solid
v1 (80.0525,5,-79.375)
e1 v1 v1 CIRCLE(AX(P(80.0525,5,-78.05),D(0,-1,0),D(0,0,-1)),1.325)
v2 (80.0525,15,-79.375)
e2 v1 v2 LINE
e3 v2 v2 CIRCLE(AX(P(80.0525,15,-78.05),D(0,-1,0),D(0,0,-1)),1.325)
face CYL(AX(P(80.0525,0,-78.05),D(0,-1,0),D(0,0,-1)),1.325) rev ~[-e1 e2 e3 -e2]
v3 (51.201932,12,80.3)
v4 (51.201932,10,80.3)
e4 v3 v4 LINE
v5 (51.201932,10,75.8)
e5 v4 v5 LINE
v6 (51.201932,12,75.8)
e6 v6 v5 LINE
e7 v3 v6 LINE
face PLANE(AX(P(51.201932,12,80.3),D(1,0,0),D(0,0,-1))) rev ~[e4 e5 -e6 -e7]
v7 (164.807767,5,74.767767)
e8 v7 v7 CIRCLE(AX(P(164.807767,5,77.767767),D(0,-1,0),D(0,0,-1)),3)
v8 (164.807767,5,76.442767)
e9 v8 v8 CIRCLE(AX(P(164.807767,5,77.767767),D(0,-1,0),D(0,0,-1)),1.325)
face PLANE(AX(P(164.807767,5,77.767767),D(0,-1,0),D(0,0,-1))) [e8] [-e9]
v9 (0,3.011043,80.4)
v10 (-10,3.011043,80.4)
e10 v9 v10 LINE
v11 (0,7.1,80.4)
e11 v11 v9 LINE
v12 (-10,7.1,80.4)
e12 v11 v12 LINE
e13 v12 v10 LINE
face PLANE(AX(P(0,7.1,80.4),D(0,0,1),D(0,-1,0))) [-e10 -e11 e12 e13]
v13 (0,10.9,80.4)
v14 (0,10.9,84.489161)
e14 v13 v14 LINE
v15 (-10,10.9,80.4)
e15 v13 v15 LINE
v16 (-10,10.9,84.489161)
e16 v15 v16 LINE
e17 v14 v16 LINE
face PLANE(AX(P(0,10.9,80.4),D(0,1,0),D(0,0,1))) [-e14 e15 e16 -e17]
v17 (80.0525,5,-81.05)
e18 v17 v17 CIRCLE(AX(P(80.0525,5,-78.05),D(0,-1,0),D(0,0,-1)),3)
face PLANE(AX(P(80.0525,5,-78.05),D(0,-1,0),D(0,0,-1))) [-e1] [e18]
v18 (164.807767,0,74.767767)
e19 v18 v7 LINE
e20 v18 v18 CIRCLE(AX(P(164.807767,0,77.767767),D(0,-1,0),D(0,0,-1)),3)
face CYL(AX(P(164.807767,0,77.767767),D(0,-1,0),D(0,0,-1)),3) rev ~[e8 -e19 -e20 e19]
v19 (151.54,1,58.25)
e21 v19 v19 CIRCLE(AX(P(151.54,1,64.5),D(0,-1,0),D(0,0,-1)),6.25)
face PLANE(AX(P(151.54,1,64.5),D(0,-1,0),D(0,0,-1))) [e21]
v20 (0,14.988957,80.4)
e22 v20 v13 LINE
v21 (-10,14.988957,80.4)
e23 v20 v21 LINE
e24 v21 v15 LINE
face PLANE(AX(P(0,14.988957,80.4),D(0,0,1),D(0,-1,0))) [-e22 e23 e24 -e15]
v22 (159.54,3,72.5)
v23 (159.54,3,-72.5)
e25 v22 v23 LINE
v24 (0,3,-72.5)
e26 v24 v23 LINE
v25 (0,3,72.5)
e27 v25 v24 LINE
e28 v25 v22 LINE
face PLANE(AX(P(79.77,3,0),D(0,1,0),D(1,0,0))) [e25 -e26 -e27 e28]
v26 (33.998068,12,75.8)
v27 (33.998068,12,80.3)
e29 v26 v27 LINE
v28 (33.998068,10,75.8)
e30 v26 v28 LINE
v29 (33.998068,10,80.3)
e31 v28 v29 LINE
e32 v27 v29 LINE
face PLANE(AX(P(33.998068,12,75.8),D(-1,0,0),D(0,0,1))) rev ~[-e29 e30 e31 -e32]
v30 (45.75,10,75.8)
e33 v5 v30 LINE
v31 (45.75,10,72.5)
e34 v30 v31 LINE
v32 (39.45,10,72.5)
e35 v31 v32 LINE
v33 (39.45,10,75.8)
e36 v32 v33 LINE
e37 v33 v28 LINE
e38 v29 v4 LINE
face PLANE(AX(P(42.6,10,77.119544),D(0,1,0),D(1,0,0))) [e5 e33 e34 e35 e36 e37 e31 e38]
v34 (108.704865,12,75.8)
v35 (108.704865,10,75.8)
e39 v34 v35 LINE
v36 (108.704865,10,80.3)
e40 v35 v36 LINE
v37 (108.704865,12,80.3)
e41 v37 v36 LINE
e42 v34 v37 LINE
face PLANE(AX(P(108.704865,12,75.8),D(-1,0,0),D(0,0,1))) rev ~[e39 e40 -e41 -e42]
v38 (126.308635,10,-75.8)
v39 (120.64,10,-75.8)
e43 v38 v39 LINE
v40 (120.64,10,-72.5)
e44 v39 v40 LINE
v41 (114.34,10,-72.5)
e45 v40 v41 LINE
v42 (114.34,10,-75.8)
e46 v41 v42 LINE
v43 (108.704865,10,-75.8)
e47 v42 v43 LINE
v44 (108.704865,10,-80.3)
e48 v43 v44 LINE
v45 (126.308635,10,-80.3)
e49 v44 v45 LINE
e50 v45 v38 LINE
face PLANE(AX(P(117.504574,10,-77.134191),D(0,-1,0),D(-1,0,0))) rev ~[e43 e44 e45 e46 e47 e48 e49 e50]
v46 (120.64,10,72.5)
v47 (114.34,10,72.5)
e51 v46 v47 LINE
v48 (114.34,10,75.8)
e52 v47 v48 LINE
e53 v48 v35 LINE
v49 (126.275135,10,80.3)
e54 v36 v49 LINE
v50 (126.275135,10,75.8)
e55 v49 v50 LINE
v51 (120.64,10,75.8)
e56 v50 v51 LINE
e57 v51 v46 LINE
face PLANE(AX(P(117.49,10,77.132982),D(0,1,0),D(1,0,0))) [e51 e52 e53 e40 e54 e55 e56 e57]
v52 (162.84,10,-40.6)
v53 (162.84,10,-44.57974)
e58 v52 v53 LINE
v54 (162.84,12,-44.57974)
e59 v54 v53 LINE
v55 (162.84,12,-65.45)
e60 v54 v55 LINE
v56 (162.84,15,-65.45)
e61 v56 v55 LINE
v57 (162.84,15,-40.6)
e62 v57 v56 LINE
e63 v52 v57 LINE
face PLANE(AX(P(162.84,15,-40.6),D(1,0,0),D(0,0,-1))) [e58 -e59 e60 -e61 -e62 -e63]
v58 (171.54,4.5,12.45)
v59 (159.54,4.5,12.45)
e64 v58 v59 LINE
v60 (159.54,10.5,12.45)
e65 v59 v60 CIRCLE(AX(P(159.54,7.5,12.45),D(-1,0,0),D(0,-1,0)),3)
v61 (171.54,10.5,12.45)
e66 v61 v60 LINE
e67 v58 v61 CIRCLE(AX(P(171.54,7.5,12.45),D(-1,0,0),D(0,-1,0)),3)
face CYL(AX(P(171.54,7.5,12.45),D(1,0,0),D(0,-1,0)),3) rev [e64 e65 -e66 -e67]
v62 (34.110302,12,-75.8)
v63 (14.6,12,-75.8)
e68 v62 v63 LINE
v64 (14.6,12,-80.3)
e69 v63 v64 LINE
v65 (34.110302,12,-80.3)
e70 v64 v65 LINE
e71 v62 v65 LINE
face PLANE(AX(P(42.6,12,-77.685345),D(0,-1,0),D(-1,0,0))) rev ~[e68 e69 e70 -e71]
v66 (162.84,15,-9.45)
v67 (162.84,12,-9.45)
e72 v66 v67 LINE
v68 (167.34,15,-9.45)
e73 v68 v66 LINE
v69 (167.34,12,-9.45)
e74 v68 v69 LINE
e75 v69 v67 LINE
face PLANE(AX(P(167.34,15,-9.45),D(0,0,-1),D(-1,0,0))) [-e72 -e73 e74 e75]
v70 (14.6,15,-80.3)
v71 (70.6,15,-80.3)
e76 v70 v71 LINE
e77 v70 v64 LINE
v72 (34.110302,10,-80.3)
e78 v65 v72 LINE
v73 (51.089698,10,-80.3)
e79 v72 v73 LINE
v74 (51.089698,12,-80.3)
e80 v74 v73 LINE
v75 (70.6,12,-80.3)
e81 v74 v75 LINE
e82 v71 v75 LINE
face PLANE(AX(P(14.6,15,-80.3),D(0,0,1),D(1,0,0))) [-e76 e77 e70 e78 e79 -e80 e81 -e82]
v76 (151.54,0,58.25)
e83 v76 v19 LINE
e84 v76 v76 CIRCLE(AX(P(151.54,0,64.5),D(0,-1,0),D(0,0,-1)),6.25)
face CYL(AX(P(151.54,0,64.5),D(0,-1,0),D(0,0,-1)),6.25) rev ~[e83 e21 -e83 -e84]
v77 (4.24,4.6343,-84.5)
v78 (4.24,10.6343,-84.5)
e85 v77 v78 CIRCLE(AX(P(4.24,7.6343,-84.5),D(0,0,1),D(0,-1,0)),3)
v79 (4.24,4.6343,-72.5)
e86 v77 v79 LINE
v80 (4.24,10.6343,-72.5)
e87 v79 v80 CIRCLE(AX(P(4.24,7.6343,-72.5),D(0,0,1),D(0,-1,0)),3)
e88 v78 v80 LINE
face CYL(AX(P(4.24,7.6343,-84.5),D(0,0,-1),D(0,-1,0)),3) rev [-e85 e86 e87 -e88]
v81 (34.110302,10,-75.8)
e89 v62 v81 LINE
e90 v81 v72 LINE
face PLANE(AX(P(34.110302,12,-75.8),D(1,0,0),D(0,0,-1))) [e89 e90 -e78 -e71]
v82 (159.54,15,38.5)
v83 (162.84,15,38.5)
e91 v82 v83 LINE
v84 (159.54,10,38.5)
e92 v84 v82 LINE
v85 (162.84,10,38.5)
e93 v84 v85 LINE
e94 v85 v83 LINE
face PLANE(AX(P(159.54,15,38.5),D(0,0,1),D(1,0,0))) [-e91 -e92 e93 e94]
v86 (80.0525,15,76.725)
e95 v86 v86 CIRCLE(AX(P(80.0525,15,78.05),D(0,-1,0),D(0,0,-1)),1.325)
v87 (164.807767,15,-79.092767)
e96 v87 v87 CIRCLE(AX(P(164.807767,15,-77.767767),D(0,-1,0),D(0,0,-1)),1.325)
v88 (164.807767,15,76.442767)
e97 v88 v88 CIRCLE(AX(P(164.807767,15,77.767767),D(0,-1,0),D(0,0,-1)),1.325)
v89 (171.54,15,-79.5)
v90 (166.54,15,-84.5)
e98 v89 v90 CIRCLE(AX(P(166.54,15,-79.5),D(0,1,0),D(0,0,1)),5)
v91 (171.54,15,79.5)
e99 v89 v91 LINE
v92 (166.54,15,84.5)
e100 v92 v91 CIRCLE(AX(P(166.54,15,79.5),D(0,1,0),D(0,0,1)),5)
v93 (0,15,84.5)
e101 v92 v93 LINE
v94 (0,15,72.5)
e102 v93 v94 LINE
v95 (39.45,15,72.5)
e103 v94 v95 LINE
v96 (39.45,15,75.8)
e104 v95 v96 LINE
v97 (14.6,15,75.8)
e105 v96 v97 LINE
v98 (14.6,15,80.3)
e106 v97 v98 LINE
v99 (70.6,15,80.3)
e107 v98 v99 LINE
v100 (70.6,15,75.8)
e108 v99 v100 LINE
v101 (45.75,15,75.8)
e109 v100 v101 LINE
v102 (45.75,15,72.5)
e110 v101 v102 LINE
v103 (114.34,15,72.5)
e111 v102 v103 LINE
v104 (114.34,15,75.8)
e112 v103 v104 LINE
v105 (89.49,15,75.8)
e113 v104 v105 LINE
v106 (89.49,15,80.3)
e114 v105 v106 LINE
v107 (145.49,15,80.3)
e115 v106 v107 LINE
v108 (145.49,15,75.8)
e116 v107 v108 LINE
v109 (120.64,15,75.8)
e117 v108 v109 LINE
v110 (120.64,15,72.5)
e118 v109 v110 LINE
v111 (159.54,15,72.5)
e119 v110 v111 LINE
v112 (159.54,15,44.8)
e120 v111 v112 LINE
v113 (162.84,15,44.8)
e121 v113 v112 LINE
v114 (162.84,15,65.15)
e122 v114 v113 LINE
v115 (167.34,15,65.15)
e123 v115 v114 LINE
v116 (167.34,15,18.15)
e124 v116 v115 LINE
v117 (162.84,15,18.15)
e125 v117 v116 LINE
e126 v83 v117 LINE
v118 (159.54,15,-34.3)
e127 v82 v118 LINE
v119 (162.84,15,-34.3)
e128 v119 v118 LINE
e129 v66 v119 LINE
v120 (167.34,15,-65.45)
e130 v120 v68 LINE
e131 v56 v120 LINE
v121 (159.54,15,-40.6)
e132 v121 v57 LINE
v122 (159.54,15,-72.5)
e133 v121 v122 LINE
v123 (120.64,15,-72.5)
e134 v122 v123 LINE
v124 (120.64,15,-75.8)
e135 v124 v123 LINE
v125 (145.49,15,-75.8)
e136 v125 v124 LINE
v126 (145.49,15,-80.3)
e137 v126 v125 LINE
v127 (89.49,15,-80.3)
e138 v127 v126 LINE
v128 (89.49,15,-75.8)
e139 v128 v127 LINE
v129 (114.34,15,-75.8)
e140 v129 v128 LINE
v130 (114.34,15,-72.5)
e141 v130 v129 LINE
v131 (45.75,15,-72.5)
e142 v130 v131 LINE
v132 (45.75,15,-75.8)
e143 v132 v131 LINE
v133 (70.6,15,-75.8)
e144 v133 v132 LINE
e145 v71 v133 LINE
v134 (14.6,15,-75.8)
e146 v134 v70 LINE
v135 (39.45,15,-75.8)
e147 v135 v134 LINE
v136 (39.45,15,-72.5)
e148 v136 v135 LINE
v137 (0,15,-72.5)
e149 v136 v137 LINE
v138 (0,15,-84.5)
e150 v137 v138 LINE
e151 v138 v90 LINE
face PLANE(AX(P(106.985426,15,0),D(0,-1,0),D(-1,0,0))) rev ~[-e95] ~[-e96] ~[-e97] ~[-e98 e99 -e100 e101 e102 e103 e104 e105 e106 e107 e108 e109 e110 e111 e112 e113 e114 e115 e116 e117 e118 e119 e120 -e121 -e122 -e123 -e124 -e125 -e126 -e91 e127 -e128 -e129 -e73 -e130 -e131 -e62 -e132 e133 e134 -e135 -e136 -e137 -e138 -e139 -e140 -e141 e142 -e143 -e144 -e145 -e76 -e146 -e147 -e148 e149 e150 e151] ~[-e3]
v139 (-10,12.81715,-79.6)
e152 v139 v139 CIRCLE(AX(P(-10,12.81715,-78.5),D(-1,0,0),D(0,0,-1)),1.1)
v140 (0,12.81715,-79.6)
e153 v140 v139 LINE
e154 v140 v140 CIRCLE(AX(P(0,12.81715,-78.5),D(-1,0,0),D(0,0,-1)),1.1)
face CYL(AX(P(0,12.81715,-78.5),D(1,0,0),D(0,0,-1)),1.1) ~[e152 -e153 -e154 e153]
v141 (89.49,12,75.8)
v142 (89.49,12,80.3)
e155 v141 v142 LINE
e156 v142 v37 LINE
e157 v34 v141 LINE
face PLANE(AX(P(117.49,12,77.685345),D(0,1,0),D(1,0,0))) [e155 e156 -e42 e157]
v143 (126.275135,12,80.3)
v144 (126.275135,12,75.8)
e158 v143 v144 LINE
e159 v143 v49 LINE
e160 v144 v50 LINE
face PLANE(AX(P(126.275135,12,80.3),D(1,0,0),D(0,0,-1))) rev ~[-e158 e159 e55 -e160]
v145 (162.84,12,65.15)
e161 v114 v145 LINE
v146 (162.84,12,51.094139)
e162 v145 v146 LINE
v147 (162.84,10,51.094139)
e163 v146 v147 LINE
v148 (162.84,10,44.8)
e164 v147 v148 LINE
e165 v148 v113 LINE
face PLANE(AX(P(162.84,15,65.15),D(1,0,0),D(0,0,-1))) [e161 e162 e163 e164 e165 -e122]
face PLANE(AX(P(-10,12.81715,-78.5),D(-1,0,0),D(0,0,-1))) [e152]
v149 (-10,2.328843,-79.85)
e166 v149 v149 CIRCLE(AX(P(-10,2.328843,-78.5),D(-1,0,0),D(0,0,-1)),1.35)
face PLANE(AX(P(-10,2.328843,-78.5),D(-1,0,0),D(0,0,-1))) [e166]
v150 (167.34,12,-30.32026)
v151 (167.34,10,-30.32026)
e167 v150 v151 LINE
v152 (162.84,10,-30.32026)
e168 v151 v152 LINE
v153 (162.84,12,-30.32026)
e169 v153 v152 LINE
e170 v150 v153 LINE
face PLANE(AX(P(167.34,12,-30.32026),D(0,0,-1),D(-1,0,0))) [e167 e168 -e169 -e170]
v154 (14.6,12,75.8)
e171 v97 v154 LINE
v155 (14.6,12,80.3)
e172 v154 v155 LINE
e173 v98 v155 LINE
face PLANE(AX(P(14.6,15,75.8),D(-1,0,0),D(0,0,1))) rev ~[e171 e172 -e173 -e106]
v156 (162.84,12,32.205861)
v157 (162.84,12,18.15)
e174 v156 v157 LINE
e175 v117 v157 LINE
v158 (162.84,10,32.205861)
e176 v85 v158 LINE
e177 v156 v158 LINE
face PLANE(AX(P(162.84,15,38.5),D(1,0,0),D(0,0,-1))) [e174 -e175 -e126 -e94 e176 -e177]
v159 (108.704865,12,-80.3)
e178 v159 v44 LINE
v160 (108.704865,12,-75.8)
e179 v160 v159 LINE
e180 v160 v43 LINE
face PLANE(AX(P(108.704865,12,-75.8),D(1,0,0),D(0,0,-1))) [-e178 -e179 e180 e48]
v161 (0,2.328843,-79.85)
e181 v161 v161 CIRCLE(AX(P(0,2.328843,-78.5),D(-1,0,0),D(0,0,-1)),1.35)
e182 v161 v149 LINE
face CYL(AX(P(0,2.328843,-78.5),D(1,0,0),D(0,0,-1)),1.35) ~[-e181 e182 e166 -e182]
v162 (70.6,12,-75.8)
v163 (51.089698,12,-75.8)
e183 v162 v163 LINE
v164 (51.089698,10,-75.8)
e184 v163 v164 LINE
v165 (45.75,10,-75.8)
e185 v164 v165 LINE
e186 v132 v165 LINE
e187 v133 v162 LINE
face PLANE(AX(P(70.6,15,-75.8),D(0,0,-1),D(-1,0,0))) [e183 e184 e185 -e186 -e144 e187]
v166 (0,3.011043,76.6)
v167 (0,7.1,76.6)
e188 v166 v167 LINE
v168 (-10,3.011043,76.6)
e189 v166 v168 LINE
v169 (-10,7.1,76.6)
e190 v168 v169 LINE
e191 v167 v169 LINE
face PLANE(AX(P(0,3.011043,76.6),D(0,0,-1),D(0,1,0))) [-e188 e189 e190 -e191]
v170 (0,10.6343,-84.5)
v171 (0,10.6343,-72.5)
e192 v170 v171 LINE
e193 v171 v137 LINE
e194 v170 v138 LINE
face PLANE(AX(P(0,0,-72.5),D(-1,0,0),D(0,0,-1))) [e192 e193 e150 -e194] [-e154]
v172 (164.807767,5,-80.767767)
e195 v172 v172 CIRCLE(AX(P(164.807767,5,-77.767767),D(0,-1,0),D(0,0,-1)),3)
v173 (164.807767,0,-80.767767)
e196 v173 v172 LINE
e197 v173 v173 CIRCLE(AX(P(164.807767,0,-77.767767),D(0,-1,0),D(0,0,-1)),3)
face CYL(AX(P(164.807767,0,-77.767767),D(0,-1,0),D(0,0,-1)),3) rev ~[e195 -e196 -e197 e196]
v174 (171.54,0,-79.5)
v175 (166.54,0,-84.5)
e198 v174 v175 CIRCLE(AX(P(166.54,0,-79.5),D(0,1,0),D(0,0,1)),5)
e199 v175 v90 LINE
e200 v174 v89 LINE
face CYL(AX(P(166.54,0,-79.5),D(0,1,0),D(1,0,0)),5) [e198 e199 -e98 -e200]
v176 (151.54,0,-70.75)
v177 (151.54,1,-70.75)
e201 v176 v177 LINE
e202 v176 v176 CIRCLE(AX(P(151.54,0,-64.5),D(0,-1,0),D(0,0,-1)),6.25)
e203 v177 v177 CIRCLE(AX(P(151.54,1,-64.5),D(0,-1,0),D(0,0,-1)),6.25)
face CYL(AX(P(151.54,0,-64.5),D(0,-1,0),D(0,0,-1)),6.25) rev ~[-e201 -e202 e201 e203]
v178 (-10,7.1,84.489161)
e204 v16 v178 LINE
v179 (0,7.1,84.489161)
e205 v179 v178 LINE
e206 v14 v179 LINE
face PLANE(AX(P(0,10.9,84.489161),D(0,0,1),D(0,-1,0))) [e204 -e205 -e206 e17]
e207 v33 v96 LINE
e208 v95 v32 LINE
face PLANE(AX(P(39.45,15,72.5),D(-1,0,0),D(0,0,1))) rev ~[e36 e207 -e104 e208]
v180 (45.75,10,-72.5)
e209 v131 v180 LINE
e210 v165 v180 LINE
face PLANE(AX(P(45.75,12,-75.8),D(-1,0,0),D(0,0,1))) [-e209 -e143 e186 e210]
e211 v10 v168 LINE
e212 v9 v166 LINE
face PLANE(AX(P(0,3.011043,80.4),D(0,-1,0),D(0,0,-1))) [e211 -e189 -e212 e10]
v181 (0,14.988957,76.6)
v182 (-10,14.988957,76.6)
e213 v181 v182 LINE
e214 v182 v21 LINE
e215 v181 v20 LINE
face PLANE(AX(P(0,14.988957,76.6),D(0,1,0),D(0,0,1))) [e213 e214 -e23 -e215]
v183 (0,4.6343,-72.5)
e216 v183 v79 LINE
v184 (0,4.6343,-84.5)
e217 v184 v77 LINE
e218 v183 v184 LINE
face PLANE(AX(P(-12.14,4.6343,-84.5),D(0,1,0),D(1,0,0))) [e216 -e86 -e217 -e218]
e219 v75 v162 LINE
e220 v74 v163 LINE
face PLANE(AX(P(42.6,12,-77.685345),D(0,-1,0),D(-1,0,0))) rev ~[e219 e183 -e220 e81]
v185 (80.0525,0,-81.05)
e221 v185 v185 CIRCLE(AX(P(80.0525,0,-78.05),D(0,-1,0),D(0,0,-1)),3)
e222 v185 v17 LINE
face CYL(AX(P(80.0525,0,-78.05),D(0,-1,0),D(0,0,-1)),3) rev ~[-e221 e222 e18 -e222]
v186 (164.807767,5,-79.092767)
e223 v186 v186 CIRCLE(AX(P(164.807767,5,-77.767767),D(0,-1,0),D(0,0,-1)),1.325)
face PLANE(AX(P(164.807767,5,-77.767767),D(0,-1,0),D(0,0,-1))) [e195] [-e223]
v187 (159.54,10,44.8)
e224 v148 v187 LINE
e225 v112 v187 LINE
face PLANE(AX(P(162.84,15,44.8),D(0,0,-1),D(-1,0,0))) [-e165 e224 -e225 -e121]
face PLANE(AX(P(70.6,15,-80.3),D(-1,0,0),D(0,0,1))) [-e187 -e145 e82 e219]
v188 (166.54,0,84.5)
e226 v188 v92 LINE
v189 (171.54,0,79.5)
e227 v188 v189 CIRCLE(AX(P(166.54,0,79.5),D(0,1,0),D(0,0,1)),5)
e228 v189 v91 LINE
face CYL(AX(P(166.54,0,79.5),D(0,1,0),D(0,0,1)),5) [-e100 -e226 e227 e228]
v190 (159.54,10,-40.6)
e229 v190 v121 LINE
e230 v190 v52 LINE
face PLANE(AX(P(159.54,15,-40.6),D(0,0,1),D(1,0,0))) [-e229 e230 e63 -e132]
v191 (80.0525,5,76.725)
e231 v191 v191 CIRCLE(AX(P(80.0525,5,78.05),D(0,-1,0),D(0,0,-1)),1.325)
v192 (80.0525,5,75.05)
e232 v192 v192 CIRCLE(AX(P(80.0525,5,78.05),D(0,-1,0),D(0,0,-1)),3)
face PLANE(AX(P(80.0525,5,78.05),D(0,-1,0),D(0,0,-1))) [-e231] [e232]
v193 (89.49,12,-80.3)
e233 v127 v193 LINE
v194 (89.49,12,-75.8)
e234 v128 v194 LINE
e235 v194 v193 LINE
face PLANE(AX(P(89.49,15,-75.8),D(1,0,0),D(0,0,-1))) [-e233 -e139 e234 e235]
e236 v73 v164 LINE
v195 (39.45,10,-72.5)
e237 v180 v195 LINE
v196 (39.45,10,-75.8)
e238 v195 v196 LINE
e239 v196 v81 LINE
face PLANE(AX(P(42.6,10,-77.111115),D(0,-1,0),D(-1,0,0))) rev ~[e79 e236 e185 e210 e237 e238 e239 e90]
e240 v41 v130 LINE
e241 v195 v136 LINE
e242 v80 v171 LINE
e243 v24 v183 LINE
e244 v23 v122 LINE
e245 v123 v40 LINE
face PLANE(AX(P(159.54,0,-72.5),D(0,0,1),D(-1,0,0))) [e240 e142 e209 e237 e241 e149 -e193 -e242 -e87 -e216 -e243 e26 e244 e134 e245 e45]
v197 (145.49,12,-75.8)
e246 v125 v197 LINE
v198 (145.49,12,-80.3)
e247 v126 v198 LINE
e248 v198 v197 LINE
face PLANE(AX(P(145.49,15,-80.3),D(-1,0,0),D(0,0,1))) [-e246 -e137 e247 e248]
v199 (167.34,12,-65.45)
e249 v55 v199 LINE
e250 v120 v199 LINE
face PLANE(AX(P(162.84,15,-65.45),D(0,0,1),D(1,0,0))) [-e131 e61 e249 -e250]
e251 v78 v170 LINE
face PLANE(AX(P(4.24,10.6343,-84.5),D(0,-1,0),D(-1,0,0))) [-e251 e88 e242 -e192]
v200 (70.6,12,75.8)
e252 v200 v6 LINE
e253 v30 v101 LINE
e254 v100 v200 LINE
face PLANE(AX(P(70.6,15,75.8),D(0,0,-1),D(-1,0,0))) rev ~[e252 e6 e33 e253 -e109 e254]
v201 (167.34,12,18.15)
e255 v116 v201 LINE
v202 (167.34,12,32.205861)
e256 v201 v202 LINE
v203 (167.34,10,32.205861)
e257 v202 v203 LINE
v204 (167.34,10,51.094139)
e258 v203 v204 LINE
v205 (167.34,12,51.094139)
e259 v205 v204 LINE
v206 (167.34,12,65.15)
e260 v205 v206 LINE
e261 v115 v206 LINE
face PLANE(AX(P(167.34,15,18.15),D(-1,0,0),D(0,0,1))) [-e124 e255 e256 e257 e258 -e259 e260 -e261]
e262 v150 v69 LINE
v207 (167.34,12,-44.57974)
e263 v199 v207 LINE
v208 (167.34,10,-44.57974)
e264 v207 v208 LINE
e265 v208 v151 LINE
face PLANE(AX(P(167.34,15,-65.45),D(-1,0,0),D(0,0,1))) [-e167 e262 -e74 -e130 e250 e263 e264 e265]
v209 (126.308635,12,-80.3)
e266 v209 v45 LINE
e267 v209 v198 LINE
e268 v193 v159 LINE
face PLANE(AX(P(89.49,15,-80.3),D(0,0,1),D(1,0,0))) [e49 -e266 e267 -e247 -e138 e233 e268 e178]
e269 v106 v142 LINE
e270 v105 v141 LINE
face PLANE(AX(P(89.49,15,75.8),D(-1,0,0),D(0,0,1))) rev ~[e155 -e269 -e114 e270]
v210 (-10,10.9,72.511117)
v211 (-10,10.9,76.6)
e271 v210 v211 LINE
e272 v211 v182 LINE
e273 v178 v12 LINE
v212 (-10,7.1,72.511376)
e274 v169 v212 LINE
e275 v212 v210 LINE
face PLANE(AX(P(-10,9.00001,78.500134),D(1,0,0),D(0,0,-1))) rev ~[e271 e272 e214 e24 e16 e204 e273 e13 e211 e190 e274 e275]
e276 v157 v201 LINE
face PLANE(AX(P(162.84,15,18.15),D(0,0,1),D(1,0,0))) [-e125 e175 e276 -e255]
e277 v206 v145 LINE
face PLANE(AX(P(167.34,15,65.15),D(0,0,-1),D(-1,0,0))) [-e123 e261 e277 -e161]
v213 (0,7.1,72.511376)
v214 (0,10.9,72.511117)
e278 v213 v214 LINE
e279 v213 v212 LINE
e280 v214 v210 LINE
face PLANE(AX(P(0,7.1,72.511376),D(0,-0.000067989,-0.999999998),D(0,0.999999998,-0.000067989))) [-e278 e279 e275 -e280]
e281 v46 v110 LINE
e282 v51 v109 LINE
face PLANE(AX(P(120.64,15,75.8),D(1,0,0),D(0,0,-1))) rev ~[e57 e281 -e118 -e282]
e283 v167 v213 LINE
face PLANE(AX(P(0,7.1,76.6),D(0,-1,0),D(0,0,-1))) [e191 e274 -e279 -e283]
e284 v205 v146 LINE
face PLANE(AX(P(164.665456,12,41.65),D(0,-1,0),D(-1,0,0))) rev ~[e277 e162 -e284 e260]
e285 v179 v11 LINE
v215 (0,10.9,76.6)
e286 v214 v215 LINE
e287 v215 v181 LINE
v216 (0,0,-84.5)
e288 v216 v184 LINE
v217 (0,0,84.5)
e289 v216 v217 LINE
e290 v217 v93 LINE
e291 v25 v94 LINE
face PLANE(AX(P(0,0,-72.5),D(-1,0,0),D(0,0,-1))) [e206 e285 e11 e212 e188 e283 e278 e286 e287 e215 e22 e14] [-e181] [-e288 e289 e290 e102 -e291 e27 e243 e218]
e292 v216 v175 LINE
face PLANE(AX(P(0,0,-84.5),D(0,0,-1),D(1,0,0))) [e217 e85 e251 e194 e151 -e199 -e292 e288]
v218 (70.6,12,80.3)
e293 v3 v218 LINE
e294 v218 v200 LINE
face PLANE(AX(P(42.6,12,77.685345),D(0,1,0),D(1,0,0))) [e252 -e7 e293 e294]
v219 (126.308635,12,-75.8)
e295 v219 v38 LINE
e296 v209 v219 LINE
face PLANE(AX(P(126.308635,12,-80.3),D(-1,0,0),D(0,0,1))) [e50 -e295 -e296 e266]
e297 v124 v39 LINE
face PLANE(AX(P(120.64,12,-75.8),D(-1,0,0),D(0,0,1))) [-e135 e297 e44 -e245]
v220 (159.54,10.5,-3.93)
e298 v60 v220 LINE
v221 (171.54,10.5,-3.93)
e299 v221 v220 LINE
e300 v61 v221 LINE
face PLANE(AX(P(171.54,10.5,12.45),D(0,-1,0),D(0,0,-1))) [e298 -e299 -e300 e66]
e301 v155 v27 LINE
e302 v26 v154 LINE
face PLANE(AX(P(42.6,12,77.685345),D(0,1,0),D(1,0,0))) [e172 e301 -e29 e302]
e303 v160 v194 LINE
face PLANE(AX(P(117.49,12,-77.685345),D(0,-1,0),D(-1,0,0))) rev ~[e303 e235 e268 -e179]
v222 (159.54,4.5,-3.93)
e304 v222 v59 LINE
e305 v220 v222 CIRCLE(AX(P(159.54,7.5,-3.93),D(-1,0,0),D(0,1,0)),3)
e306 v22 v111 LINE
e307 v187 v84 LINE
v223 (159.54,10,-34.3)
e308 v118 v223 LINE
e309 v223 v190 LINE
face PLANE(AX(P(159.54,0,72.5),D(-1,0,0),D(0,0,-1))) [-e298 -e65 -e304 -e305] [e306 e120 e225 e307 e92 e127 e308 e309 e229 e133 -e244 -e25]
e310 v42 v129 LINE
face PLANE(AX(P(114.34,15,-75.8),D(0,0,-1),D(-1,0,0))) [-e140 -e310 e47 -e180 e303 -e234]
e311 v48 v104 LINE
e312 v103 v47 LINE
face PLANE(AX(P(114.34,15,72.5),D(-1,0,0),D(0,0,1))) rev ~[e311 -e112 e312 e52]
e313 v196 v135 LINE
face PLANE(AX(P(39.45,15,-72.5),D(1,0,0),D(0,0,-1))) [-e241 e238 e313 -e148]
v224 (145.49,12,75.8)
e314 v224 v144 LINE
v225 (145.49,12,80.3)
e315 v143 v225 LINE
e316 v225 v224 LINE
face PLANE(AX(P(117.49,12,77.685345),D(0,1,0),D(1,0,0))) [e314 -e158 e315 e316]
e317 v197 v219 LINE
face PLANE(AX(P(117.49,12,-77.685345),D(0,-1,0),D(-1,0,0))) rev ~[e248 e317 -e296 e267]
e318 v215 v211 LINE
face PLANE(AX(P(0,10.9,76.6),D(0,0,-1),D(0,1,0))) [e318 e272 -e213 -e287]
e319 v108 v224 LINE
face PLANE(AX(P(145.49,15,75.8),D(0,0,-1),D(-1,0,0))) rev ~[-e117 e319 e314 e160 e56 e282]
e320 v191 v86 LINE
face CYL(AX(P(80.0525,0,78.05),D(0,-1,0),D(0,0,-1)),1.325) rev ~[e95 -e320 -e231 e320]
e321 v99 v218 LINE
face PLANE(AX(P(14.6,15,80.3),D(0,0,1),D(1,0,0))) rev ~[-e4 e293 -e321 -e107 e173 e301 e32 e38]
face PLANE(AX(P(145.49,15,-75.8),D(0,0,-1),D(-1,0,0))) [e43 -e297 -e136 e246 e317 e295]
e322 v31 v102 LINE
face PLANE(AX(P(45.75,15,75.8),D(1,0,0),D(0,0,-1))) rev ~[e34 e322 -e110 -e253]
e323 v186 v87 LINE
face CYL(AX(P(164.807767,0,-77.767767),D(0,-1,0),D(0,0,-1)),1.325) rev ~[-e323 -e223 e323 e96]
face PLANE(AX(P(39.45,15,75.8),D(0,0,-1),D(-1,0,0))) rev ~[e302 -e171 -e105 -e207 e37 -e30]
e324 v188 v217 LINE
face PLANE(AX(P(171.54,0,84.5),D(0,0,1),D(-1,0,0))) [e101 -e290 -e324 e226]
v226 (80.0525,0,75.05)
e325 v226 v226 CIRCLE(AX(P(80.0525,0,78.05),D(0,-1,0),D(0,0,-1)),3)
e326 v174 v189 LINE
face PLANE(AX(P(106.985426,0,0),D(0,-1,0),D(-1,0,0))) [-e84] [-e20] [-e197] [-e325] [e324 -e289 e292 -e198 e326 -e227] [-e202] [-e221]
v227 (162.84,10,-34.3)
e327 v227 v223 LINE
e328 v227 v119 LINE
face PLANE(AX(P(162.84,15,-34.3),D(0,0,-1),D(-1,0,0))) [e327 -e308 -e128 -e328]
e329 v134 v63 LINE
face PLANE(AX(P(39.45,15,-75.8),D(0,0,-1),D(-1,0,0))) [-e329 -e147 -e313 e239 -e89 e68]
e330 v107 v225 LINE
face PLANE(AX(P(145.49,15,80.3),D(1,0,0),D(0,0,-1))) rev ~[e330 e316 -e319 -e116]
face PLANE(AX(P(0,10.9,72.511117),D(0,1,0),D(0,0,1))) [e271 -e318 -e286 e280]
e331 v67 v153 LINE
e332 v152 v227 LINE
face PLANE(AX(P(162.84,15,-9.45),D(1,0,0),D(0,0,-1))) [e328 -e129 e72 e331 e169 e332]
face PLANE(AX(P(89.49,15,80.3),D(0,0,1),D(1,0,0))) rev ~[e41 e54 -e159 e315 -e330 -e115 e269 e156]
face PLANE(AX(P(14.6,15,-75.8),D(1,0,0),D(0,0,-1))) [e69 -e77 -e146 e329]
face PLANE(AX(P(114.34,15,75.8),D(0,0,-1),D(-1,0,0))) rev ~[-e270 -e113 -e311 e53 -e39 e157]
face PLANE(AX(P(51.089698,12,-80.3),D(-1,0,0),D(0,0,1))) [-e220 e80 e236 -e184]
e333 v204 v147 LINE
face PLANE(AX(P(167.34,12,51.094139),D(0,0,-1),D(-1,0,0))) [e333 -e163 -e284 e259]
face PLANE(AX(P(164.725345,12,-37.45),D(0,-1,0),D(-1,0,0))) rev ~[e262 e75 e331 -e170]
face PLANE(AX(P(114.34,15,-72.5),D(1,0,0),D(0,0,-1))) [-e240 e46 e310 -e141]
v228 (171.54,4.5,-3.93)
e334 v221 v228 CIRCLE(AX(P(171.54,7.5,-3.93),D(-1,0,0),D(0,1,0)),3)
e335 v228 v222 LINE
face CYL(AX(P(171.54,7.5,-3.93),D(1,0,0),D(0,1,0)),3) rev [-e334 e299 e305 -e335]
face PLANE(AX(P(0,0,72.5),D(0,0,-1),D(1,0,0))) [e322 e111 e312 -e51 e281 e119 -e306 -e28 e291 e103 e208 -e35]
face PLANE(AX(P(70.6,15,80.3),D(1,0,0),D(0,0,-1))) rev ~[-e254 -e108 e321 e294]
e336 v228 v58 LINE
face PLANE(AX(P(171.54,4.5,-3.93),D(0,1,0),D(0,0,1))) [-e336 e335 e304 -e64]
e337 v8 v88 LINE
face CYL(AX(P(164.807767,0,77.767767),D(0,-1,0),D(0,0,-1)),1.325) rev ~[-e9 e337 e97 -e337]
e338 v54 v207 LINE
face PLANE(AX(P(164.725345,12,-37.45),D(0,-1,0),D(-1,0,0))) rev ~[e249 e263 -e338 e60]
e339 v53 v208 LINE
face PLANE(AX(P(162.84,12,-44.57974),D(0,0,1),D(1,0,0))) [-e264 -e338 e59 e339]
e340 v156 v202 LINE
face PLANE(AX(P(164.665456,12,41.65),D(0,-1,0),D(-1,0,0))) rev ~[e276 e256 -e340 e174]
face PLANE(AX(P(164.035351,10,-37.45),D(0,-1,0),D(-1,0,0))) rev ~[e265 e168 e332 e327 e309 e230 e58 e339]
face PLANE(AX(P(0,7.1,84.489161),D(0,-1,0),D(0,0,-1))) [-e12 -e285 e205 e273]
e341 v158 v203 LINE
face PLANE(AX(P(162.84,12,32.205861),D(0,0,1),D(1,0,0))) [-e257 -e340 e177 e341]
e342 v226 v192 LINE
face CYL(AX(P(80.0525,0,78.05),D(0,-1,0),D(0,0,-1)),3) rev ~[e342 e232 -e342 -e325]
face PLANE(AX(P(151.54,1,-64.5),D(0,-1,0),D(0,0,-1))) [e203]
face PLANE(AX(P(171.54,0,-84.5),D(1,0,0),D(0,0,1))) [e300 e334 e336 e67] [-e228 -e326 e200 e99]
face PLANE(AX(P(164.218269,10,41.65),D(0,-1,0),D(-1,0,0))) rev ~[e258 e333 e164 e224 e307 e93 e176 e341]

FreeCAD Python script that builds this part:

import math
import FreeCAD as App
import Part
import Sketcher

V = App.Vector


def edges_at(feature, points):
    """Names of the edges that pass closest to the given points."""
    edges = feature.Shape.Edges
    near = lambda p: min(range(len(edges)), key=lambda i: edges[i].distToShape(Part.Vertex(*p))[0])
    return sorted({f"Edge{near(p) + 1}" for p in points})


def add_polygon(sketch, points):
    """Adds a closed chain of lines whose ends are joined by coincident constraints."""
    first, n = sketch.GeometryCount, len(points)
    for a, b in zip(points, points[1:] + points[:1]):
        sketch.addGeometry(Part.LineSegment(App.Vector(*a, 0), App.Vector(*b, 0)), False)
    for i in range(n):
        sketch.addConstraint(Sketcher.Constraint("Coincident", first + i, 2, first + (i + 1) % n, 1))

doc = App.newDocument("Part")
body = doc.addObject("PartDesign::Body", "Body")

# Sketch on XZ plane
sketch1 = body.newObject("Sketcher::SketchObject", "Sketch")
sketch1.AttachmentSupport = (doc.getObject("XZ_Plane"), [""])
sketch1.MapMode = "FlatFace"
add_polygon(sketch1, [(0, -72.5), (0, 72.5), (159.54, 72.5), (159.54, -72.5)])  # lines 0-3
sketch1.addConstraint([
    Sketcher.Constraint("Vertical", 0),
    Sketcher.Constraint("Horizontal", 1),
    Sketcher.Constraint("Vertical", 2),
    Sketcher.Constraint("Horizontal", 3),
    Sketcher.Constraint("Symmetric", 0, 2, 3, 2, -1, 1),
    Sketcher.Constraint("DistanceY", 0, 1, 0, 2, 145.0),
    Sketcher.Constraint("DistanceX", 1, 1, 1, 2, 159.54),
])
pad1 = body.newObject("PartDesign::Pad", "Pad")
pad1.Profile = sketch1
pad1.Length = 3
pad1.Reversed = True

# Sketch on XZ plane
sketch2 = body.newObject("Sketcher::SketchObject", "Sketch001")
sketch2.AttachmentSupport = (doc.getObject("XZ_Plane"), [""])
sketch2.MapMode = "FlatFace"
add_polygon(sketch2, [(0, -84.5), (0, -72.5), (159.54, -72.5), (159.54, 72.5), (0, 72.5), (0, 84.5), (171.54, 84.5), (171.54, -84.5)])  # lines 0-7
sketch2.addConstraint([
    Sketcher.Constraint("Vertical", 0),
    Sketcher.Constraint("Horizontal", 1),
    Sketcher.Constraint("Vertical", 2),
    Sketcher.Constraint("Horizontal", 3),
    Sketcher.Constraint("Vertical", 4),
    Sketcher.Constraint("Horizontal", 5),
    Sketcher.Constraint("Vertical", 6),
    Sketcher.Constraint("Horizontal", 7),
    Sketcher.Constraint("Symmetric", 0, 2, 3, 2, -1, 1),
    Sketcher.Constraint("Symmetric", 4, 2, 7, 2, -1),
    Sketcher.Constraint("DistanceY", 0, 1, 0, 2, 12.0),
    Sketcher.Constraint("DistanceY", 2, 1, 2, 2, 145.0),
    Sketcher.Constraint("DistanceX", 2, 2, 5, 2, 12.0),
    Sketcher.Constraint("DistanceX", 1, 1, 1, 2, 159.54),
])
pad2 = body.newObject("PartDesign::Pad", "Pad001")
pad2.Profile = sketch2
pad2.Length = 15
pad2.Reversed = True

# Sketch on XZ plane
sketch3 = body.newObject("Sketcher::SketchObject", "Sketch002")
sketch3.AttachmentSupport = (doc.getObject("XZ_Plane"), [""])
sketch3.MapMode = "FlatFace"
sketch3.AttachmentOffset = App.Placement(V(0, 0, -15), App.Rotation())
add_polygon(sketch3, [(45.75, -72.5), (45.75, -75.8), (70.6, -75.8), (70.6, -80.3), (14.6, -80.3), (14.6, -75.8), (39.45, -75.8), (39.45, -72.5)])  # lines 0-7
add_polygon(sketch3, [(120.64, -72.5), (120.64, -75.8), (145.49, -75.8), (145.49, -80.3), (89.49, -80.3), (89.49, -75.8), (114.34, -75.8), (114.34, -72.5)])  # lines 8-15
add_polygon(sketch3, [(145.49, 75.8), (120.64, 75.8), (120.64, 72.5), (114.34, 72.5), (114.34, 75.8), (89.49, 75.8), (89.49, 80.3), (145.49, 80.3)])  # lines 16-23
add_polygon(sketch3, [(70.6, 75.8), (45.75, 75.8), (45.75, 72.5), (39.45, 72.5), (39.45, 75.8), (14.6, 75.8), (14.6, 80.3), (70.6, 80.3)])  # lines 24-31
add_polygon(sketch3, [(162.84, 38.5), (159.54, 38.5), (159.54, 44.8), (162.84, 44.8), (162.84, 65.15), (167.34, 65.15), (167.34, 18.15), (162.84, 18.15)])  # lines 32-39
add_polygon(sketch3, [(162.84, -40.6), (159.54, -40.6), (159.54, -34.3), (162.84, -34.3), (162.84, -9.45), (167.34, -9.45), (167.34, -65.45), (162.84, -65.45)])  # lines 40-47
sketch3.addConstraint([
    Sketcher.Constraint("Vertical", 0),
    Sketcher.Constraint("Horizontal", 1),
    Sketcher.Constraint("Vertical", 2),
    Sketcher.Constraint("Horizontal", 3),
    Sketcher.Constraint("Vertical", 4),
    Sketcher.Constraint("Horizontal", 5),
    Sketcher.Constraint("Vertical", 6),
    Sketcher.Constraint("Horizontal", 7),
    Sketcher.Constraint("Vertical", 8),
    Sketcher.Constraint("Horizontal", 9),
    Sketcher.Constraint("Vertical", 10),
    Sketcher.Constraint("Horizontal", 11),
    Sketcher.Constraint("Vertical", 12),
    Sketcher.Constraint("Horizontal", 13),
    Sketcher.Constraint("Vertical", 14),
    Sketcher.Constraint("Horizontal", 15),
    Sketcher.Constraint("Horizontal", 16),
    Sketcher.Constraint("Vertical", 17),
    Sketcher.Constraint("Horizontal", 18),
    Sketcher.Constraint("Vertical", 19),
    Sketcher.Constraint("Horizontal", 20),
    Sketcher.Constraint("Vertical", 21),
    Sketcher.Constraint("Horizontal", 22),
    Sketcher.Constraint("Vertical", 23),
    Sketcher.Constraint("Horizontal", 24),
    Sketcher.Constraint("Vertical", 25),
    Sketcher.Constraint("Horizontal", 26),
    Sketcher.Constraint("Vertical", 27),
    Sketcher.Constraint("Horizontal", 28),
    Sketcher.Constraint("Vertical", 29),
    Sketcher.Constraint("Horizontal", 30),
    Sketcher.Constraint("Vertical", 31),
    Sketcher.Constraint("Horizontal", 32),
    Sketcher.Constraint("Vertical", 33),
    Sketcher.Constraint("Horizontal", 34),
    Sketcher.Constraint("Vertical", 35),
    Sketcher.Constraint("Horizontal", 36),
    Sketcher.Constraint("Vertical", 37),
    Sketcher.Constraint("Horizontal", 38),
    Sketcher.Constraint("Vertical", 39),
    Sketcher.Constraint("Horizontal", 40),
    Sketcher.Constraint("Vertical", 41),
    Sketcher.Constraint("Horizontal", 42),
    Sketcher.Constraint("Vertical", 43),
    Sketcher.Constraint("Horizontal", 44),
    Sketcher.Constraint("Vertical", 45),
    Sketcher.Constraint("Horizontal", 46),
    Sketcher.Constraint("Vertical", 47),
    Sketcher.Constraint("Symmetric", 8, 2, 16, 2, -1),
    Sketcher.Constraint("Symmetric", 14, 2, 18, 2, -1),
    Sketcher.Constraint("Symmetric", 12, 2, 20, 2, -1),
    Sketcher.Constraint("Symmetric", 10, 2, 22, 2, -1),
    Sketcher.Constraint("Symmetric", 0, 2, 24, 2, -1),
    Sketcher.Constraint("Symmetric", 6, 2, 26, 2, -1),
    Sketcher.Constraint("Symmetric", 4, 2, 28, 2, -1),
    Sketcher.Constraint("Symmetric", 2, 2, 30, 2, -1),
    Sketcher.Constraint("Horizontal", 1, 2, 4, 2),
    Sketcher.Constraint("Horizontal", 5, 2, 8, 2),
    Sketcher.Constraint("Horizontal", 3, 2, 10, 2),
    Sketcher.Constraint("Horizontal", 9, 2, 12, 2),
    Sketcher.Constraint("Horizontal", 7, 2, 14, 2),
    Sketcher.Constraint("Vertical", 35, 2, 38, 2),
    Sketcher.Constraint("Vertical", 33, 2, 40, 2),
    Sketcher.Constraint("Vertical", 39, 2, 42, 2),
    Sketcher.Constraint("Vertical", 37, 2, 44, 2),
    Sketcher.Constraint("Vertical", 43, 2, 46, 2),
    Sketcher.Constraint("Equal", 1, 5),
    Sketcher.Constraint("Equal", 5, 9),
    Sketcher.Constraint("Equal", 3, 11),
    Sketcher.Constraint("Equal", 9, 13),
    Sketcher.Constraint("Equal", 42, 0),
    Sketcher.Constraint("Equal", 46, 2),
    Sketcher.Constraint("Equal", 26, 33),
    Sketcher.Constraint("Equal", 35, 39),
    Sketcher.Constraint("Equal", 33, 41),
    Sketcher.Constraint("Equal", 28, 43),
    Sketcher.Constraint("Equal", 30, 45),
    Sketcher.Constraint("DistanceX", 3, 2, 3, 1, 56.0),
    Sketcher.Constraint("DistanceY", 37, 2, 37, 1, 47.0),
    Sketcher.Constraint("DistanceX", 7, 1, 7, 2, 6.3),
    Sketcher.Constraint("DistanceX", 32, 2, 32, 1, 3.3),
    Sketcher.Constraint("DistanceX", 36, 1, 36, 2, 4.5),
    Sketcher.Constraint("DistanceY", 15, 2, 17, 2, 145.0),
    Sketcher.Constraint("DistanceY", 32, 2, 17, 2, 34.0),
    Sketcher.Constraint("DistanceY", 10, 2, 41, 2, 46.0),
    Sketcher.Constraint("DistanceX", -1, 1, 1, 2, 70.6),
    Sketcher.Constraint("DistanceX", 17, 2, 32, 2, 38.9),
    Sketcher.Constraint("DistanceX", -1, 1, 8, 2, 120.64),
])
pocket1 = body.newObject("PartDesign::Pocket", "Pocket")
pocket1.Profile = sketch3
pocket1.Length = 3
pocket1.Reversed = True

# Sketch on XZ plane
sketch4 = body.newObject("Sketcher::SketchObject", "Sketch003")
sketch4.AttachmentSupport = (doc.getObject("XZ_Plane"), [""])
sketch4.MapMode = "FlatFace"
sketch4.AttachmentOffset = App.Placement(V(0, 0, -12), App.Rotation())
add_polygon(sketch4, [(39.45, 72.5), (39.45, 75.8), (33.998068, 75.8), (33.998068, 80.3), (51.201932, 80.3), (51.201932, 75.8), (45.75, 75.8), (45.75, 72.5)])  # lines 0-7
add_polygon(sketch4, [(114.34, 75.8), (108.704865, 75.8), (108.704865, 80.3), (126.275135, 80.3), (126.275135, 75.8), (120.64, 75.8), (120.64, 72.5), (114.34, 72.5)])  # lines 8-15
add_polygon(sketch4, [(114.34, -72.5), (120.64, -72.5), (120.64, -75.8), (126.308635, -75.8), (126.308635, -80.3), (108.704865, -80.3), (108.704865, -75.8), (114.34, -75.8)])  # lines 16-23
add_polygon(sketch4, [(39.45, -72.5), (45.75, -72.5), (45.75, -75.8), (51.089698, -75.8), (51.089698, -80.3), (34.110302, -80.3), (34.110302, -75.8), (39.45, -75.8)])  # lines 24-31
add_polygon(sketch4, [(159.54, 38.5), (159.54, 44.8), (162.84, 44.8), (162.84, 51.094139), (167.34, 51.094139), (167.34, 32.205861), (162.84, 32.205861), (162.84, 38.5)])  # lines 32-39
add_polygon(sketch4, [(162.84, -40.6), (159.54, -40.6), (159.54, -34.3), (162.84, -34.3), (162.84, -30.32026), (167.34, -30.32026), (167.34, -44.57974), (162.84, -44.57974)])  # lines 40-47
sketch4.addConstraint([
    Sketcher.Constraint("Vertical", 0),
    Sketcher.Constraint("Horizontal", 1),
    Sketcher.Constraint("Vertical", 2),
    Sketcher.Constraint("Horizontal", 3),
    Sketcher.Constraint("Vertical", 4),
    Sketcher.Constraint("Horizontal", 5),
    Sketcher.Constraint("Vertical", 6),
    Sketcher.Constraint("Horizontal", 7),
    Sketcher.Constraint("Horizontal", 8),
    Sketcher.Constraint("Vertical", 9),
    Sketcher.Constraint("Horizontal", 10),
    Sketcher.Constraint("Vertical", 11),
    Sketcher.Constraint("Horizontal", 12),
    Sketcher.Constraint("Vertical", 13),
    Sketcher.Constraint("Horizontal", 14),
    Sketcher.Constraint("Vertical", 15),
    Sketcher.Constraint("Horizontal", 16),
    Sketcher.Constraint("Vertical", 17),
    Sketcher.Constraint("Horizontal", 18),
    Sketcher.Constraint("Vertical", 19),
    Sketcher.Constraint("Horizontal", 20),
    Sketcher.Constraint("Vertical", 21),
    Sketcher.Constraint("Horizontal", 22),
    Sketcher.Constraint("Vertical", 23),
    Sketcher.Constraint("Horizontal", 24),
    Sketcher.Constraint("Vertical", 25),
    Sketcher.Constraint("Horizontal", 26),
    Sketcher.Constraint("Vertical", 27),
    Sketcher.Constraint("Horizontal", 28),
    Sketcher.Constraint("Vertical", 29),
    Sketcher.Constraint("Horizontal", 30),
    Sketcher.Constraint("Vertical", 31),
    Sketcher.Constraint("Vertical", 32),
    Sketcher.Constraint("Horizontal", 33),
    Sketcher.Constraint("Vertical", 34),
    Sketcher.Constraint("Horizontal", 35),
    Sketcher.Constraint("Vertical", 36),
    Sketcher.Constraint("Horizontal", 37),
    Sketcher.Constraint("Vertical", 38),
    Sketcher.Constraint("Horizontal", 39),
    Sketcher.Constraint("Horizontal", 40),
    Sketcher.Constraint("Vertical", 41),
    Sketcher.Constraint("Horizontal", 42),
    Sketcher.Constraint("Vertical", 43),
    Sketcher.Constraint("Horizontal", 44),
    Sketcher.Constraint("Vertical", 45),
    Sketcher.Constraint("Horizontal", 46),
    Sketcher.Constraint("Vertical", 47),
    Sketcher.Constraint("Symmetric", 13, 2, 16, 2, -1),
    Sketcher.Constraint("Symmetric", 9, 2, 20, 2, -1),
    Sketcher.Constraint("Symmetric", 15, 2, 22, 2, -1),
    Sketcher.Constraint("Symmetric", 6, 2, 24, 2, -1),
    Sketcher.Constraint("Symmetric", 0, 2, 30, 2, -1),
    Sketcher.Constraint("Horizontal", 1, 2, 4, 2),
    Sketcher.Constraint("Horizontal", 5, 2, 8, 2),
    Sketcher.Constraint("Horizontal", 3, 2, 9, 2),
    Sketcher.Constraint("Horizontal", 8, 2, 11, 2),
    Sketcher.Constraint("Horizontal", 7, 2, 13, 2),
    Sketcher.Constraint("Horizontal", 18, 2, 21, 2),
    Sketcher.Constraint("Horizontal", 22, 2, 25, 2),
    Sketcher.Constraint("Horizontal", 20, 2, 27, 2),
    Sketcher.Constraint("Vertical", 34, 2, 37, 2),
    Sketcher.Constraint("Vertical", 39, 2, 40, 2),
    Sketcher.Constraint("Vertical", 38, 2, 42, 2),
    Sketcher.Constraint("Vertical", 36, 2, 44, 2),
    Sketcher.Constraint("Vertical", 43, 2, 46, 2),
    Sketcher.Constraint("Equal", 1, 5),
    Sketcher.Constraint("Equal", 8, 12),
    Sketcher.Constraint("Equal", 7, 14),
    Sketcher.Constraint("Equal", 26, 30),
    Sketcher.Constraint("Equal", 42, 0),
    Sketcher.Constraint("Equal", 46, 2),
    Sketcher.Constraint("Equal", 24, 32),
    Sketcher.Constraint("Equal", 34, 38),
    Sketcher.Constraint("Equal", 32, 41),
    Sketcher.Constraint("Equal", 43, 47),
    Sketcher.Constraint("DistanceX", 7, 2, 7, 1, 6.3),
    Sketcher.Constraint("DistanceX", 33, 1, 33, 2, 3.3),
    Sketcher.Constraint("DistanceX", 35, 1, 35, 2, 4.5),
    Sketcher.Constraint("DistanceY", 16, 2, 13, 2, 145.0),
    Sketcher.Constraint("DistanceY", 32, 2, 11, 2, 31.0),
    Sketcher.Constraint("DistanceY", 19, 2, 41, 2, 46.0),
    Sketcher.Constraint("DistanceX", 13, 2, 32, 2, 38.9),
    Sketcher.Constraint("DistanceX", -1, 1, 0, 2, 39.45),
    Sketcher.Constraint("DistanceX", -1, 1, 12, 2, 120.64),
    Sketcher.Constraint("DistanceX", 10, 1, 10, 2, 17.57027),
    Sketcher.Constraint("DistanceX", 20, 2, 20, 1, 17.60377),
    Sketcher.Constraint("DistanceY", 34, 1, 34, 2, 6.294139),
    Sketcher.Constraint("DistanceY", 43, 1, 43, 2, 3.97974),
    Sketcher.Constraint("DistanceX", 1, 2, 1, 1, 5.451932),
    Sketcher.Constraint("DistanceX", 26, 1, 26, 2, 5.339698),
])
pocket2 = body.newObject("PartDesign::Pocket", "Pocket001")
pocket2.Profile = sketch4
pocket2.Length = 2
pocket2.Reversed = True

# Sketch on YZ plane
sketch5 = body.newObject("Sketcher::SketchObject", "Sketch004")
sketch5.AttachmentSupport = (doc.getObject("YZ_Plane"), [""])
sketch5.MapMode = "FlatFace"
sketch5.AttachmentOffset = App.Placement(V(0, 0, 171.54), App.Rotation())
sketch5.addGeometry([
    Part.LineSegment(V(10.5, -3.93, 0), V(10.5, 12.45, 0)),
    Part.ArcOfCircle(Part.Circle(V(7.5, 12.45, 0), V(0, 0, 1), 3), math.radians(0), math.radians(180)),
    Part.LineSegment(V(4.5, 12.45, 0), V(4.5, -3.93, 0)),
    Part.ArcOfCircle(Part.Circle(V(7.5, -3.93, 0), V(0, 0, 1), 3), math.radians(180), math.radians(360)),
], False)
sketch5.addConstraint([
    Sketcher.Constraint("Tangent", 0, 2, 1, 1),
    Sketcher.Constraint("Tangent", 1, 2, 2, 1),
    Sketcher.Constraint("Tangent", 2, 2, 3, 1),
    Sketcher.Constraint("Tangent", 3, 2, 0, 1),
    Sketcher.Constraint("Vertical", 0),
    Sketcher.Constraint("Vertical", 2),
    Sketcher.Constraint("Radius", 1, 3.0),
    Sketcher.Constraint("DistanceY", 0, 1, 0, 2, 16.38),
    Sketcher.Constraint("DistanceX", -1, 1, 1, 3, 7.5),
    Sketcher.Constraint("DistanceY", -1, 1, 1, 3, 12.45),
])
pocket3 = body.newObject("PartDesign::Pocket", "Pocket002")
pocket3.Profile = sketch5
pocket3.Length = 12

# Sketch on XY plane
sketch6 = body.newObject("Sketcher::SketchObject", "Sketch005")
sketch6.AttachmentSupport = (doc.getObject("XY_Plane"), [""])
sketch6.MapMode = "FlatFace"
sketch6.AttachmentOffset = App.Placement(V(0, 0, -84.5), App.Rotation())
sketch6.addGeometry([
    Part.LineSegment(V(-12.14, 10.6343, 0), V(4.24, 10.6343, 0)),
    Part.ArcOfCircle(Part.Circle(V(4.24, 7.6343, 0), V(0, 0, 1), 3), math.radians(-90), math.radians(90)),
    Part.LineSegment(V(4.24, 4.6343, 0), V(-12.14, 4.6343, 0)),
    Part.ArcOfCircle(Part.Circle(V(-12.14, 7.6343, 0), V(0, 0, 1), 3), math.radians(90), math.radians(270)),
], False)
sketch6.addConstraint([
    Sketcher.Constraint("Tangent", 0, 2, 1, 2),
    Sketcher.Constraint("Tangent", 1, 1, 2, 1),
    Sketcher.Constraint("Tangent", 2, 2, 3, 2),
    Sketcher.Constraint("Tangent", 3, 1, 0, 1),
    Sketcher.Constraint("Horizontal", 0),
    Sketcher.Constraint("Horizontal", 2),
    Sketcher.Constraint("Radius", 1, 3.0),
    Sketcher.Constraint("DistanceX", 0, 1, 0, 2, 16.38),
    Sketcher.Constraint("DistanceX", -1, 1, 1, 3, 4.24),
    Sketcher.Constraint("DistanceY", -1, 1, 1, 3, 7.6343),
])
pocket4 = body.newObject("PartDesign::Pocket", "Pocket003")
pocket4.Profile = sketch6
pocket4.Length = 12
pocket4.Reversed = True

# Sketch on YZ plane
sketch7 = body.newObject("Sketcher::SketchObject", "Sketch006")
sketch7.AttachmentSupport = (doc.getObject("YZ_Plane"), [""])
sketch7.MapMode = "FlatFace"
sketch7.addGeometry([
    Part.Circle(V(12.81715, -78.5, 0), V(0, 0, 1), 1.1),
    Part.Circle(V(2.328843, -78.5, 0), V(0, 0, 1), 1.35),
], False)
sketch7.addConstraint([
    Sketcher.Constraint("Horizontal", 0, 3, 1, 3),
    Sketcher.Constraint("Diameter", 0, 2.2),
    Sketcher.Constraint("Diameter", 1, 2.7),
    Sketcher.Constraint("DistanceY", 0, 3, -1, 1, 78.5),
    Sketcher.Constraint("DistanceX", -1, 1, 0, 3, 12.81715),
    Sketcher.Constraint("DistanceX", -1, 1, 1, 3, 2.328843),
])
pad3 = body.newObject("PartDesign::Pad", "Pad002")
pad3.Profile = sketch7
pad3.Length = 10
pad3.Reversed = True

# Sketch on YZ plane
sketch8 = body.newObject("Sketcher::SketchObject", "Sketch007")
sketch8.AttachmentSupport = (doc.getObject("YZ_Plane"), [""])
sketch8.MapMode = "FlatFace"
add_polygon(sketch8, [(14.988957, 80.4), (14.988957, 76.6), (10.9, 76.6), (10.9, 72.511117), (7.1, 72.511376), (7.1, 76.6), (3.011043, 76.6), (3.011043, 80.4), (7.1, 80.4), (7.1, 84.489161), (10.9, 84.489161), (10.9, 80.4)])  # lines 0-11
sketch8.addConstraint([
    Sketcher.Constraint("Vertical", 0),
    Sketcher.Constraint("Horizontal", 1),
    Sketcher.Constraint("Vertical", 2),
    Sketcher.Constraint("Vertical", 4),
    Sketcher.Constraint("Horizontal", 5),
    Sketcher.Constraint("Vertical", 6),
    Sketcher.Constraint("Horizontal", 7),
    Sketcher.Constraint("Vertical", 8),
    Sketcher.Constraint("Horizontal", 9),
    Sketcher.Constraint("Vertical", 10),
    Sketcher.Constraint("Horizontal", 11),
    Sketcher.Constraint("Horizontal", 1, 2, 4, 2),
    Sketcher.Constraint("Horizontal", 7, 2, 10, 2),
    Sketcher.Constraint("Vertical", 4, 2, 7, 2),
    Sketcher.Constraint("Vertical", 2, 2, 9, 2),
    Sketcher.Constraint("Equal", 1, 5),
    Sketcher.Constraint("Equal", 9, 0),
    Sketcher.Constraint("DistanceX", 9, 1, 9, 2, 3.8),
    Sketcher.Constraint("DistanceY", -1, 1, 0, 2, 76.6),
    Sketcher.Constraint("DistanceX", -1, 1, 1, 2, 10.9),
    Sketcher.Constraint("DistanceY", 8, 1, 8, 2, 4.089161),
    Sketcher.Constraint("DistanceX", 1, 2, 1, 1, 4.088957),
    Sketcher.Constraint("DistanceY", 2, 2, 2, 1, 4.088883),
    Sketcher.Constraint("DistanceY", 4, 1, 4, 2, 4.088624),
])
pad4 = body.newObject("PartDesign::Pad", "Pad003")
pad4.Profile = sketch8
pad4.Length = 10
pad4.Reversed = True
doc.recompute()

fillet = body.newObject("PartDesign::Fillet", "Fillet")
fillet.Base = (pad4, edges_at(pad4, [(171.54, 7.5, 84.5)]))
fillet.Radius = 5
doc.recompute()

fillet2 = body.newObject("PartDesign::Fillet", "Fillet001")
fillet2.Base = (fillet, edges_at(fillet, [(171.54, 7.5, -84.5)]))
fillet2.Radius = 5

# Sketch on XZ plane
sketch9 = body.newObject("Sketcher::SketchObject", "Sketch008")
sketch9.AttachmentSupport = (doc.getObject("XZ_Plane"), [""])
sketch9.MapMode = "FlatFace"
sketch9.addGeometry([
    Part.Circle(V(80.0525, 78.05, 0), V(0, 0, 1), 1.325),
    Part.Circle(V(164.807767, 77.767767, 0), V(0, 0, 1), 1.325),
    Part.Circle(V(164.807767, -77.767767, 0), V(0, 0, 1), 1.325),
    Part.Circle(V(80.0525, -78.05, 0), V(0, 0, 1), 1.325),
], False)
sketch9.addConstraint([
    Sketcher.Constraint("Equal", 0, 1),
    Sketcher.Constraint("Equal", 1, 2),
    Sketcher.Constraint("Equal", 2, 3),
    Sketcher.Constraint("Symmetric", 1, 3, 2, 3, -1),
    Sketcher.Constraint("Symmetric", 0, 3, 3, 3, -1),
    Sketcher.Constraint("Diameter", 0, 2.65),
    Sketcher.Constraint("DistanceY", 3, 3, 0, 3, 156.1),
    Sketcher.Constraint("DistanceX", -1, 1, 0, 3, 80.0525),
    Sketcher.Constraint("DistanceX", -1, 1, 1, 3, 164.807767),
    Sketcher.Constraint("DistanceY", -1, 1, 1, 3, 77.767767),
])
pocket5 = body.newObject("PartDesign::Pocket", "Pocket004")
pocket5.Profile = sketch9
pocket5.Length = 17

# Sketch on XZ plane
sketch10 = body.newObject("Sketcher::SketchObject", "Sketch009")
sketch10.AttachmentSupport = (doc.getObject("XZ_Plane"), [""])
sketch10.MapMode = "FlatFace"
sketch10.addGeometry([
    Part.Circle(V(80.0525, 78.05, 0), V(0, 0, 1), 3),
    Part.Circle(V(164.807767, 77.767767, 0), V(0, 0, 1), 3),
    Part.Circle(V(164.807767, -77.767767, 0), V(0, 0, 1), 3),
    Part.Circle(V(80.0525, -78.05, 0), V(0, 0, 1), 3),
], False)
sketch10.addConstraint([
    Sketcher.Constraint("Equal", 0, 1),
    Sketcher.Constraint("Equal", 1, 2),
    Sketcher.Constraint("Equal", 2, 3),
    Sketcher.Constraint("Symmetric", 1, 3, 2, 3, -1),
    Sketcher.Constraint("Symmetric", 0, 3, 3, 3, -1),
    Sketcher.Constraint("Diameter", 0, 6.0),
    Sketcher.Constraint("DistanceY", 3, 3, 0, 3, 156.1),
    Sketcher.Constraint("DistanceX", -1, 1, 0, 3, 80.0525),
    Sketcher.Constraint("DistanceX", -1, 1, 1, 3, 164.807767),
    Sketcher.Constraint("DistanceY", -1, 1, 1, 3, 77.767767),
])
pocket6 = body.newObject("PartDesign::Pocket", "Pocket005")
pocket6.Profile = sketch10
pocket6.Length = 5

# Sketch on XZ plane
sketch11 = body.newObject("Sketcher::SketchObject", "Sketch010")
sketch11.AttachmentSupport = (doc.getObject("XZ_Plane"), [""])
sketch11.MapMode = "FlatFace"
sketch11.addGeometry([
    Part.Circle(V(151.54, 64.5, 0), V(0, 0, 1), 6.25),
    Part.Circle(V(151.54, -64.5, 0), V(0, 0, 1), 6.25),
], False)
sketch11.addConstraint([
    Sketcher.Constraint("Equal", 0, 1),
    Sketcher.Constraint("Symmetric", 0, 3, 1, 3, -1),
    Sketcher.Constraint("Diameter", 0, 12.5),
    Sketcher.Constraint("DistanceY", 1, 3, 0, 3, 129.0),
    Sketcher.Constraint("DistanceX", -1, 1, 0, 3, 151.54),
])
pocket7 = body.newObject("PartDesign::Pocket", "Pocket006")
pocket7.Profile = sketch11
pocket7.Length = 1

doc.recompute()
